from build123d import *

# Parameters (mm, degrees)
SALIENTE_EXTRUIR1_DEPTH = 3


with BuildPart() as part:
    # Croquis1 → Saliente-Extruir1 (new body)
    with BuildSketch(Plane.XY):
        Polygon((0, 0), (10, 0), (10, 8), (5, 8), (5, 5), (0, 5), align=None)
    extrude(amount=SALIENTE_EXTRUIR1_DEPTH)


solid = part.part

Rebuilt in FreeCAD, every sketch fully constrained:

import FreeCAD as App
import Part
import Sketcher
from FreeCAD import Vector

doc = App.newDocument("Part")
body = doc.addObject("PartDesign::Body", "Body")

sketch1 = body.newObject("Sketcher::SketchObject", "Sketch")
sketch1.AttachmentSupport = (doc.getObject("XY_Plane"), [""])
sketch1.MapMode = "FlatFace"
sketch1.addGeometry(Part.LineSegment(Vector(0, 0, 0), Vector(10, 0, 0)), False)
sketch1.addGeometry(Part.LineSegment(Vector(10, 0, 0), Vector(10, 8, 0)), False)
sketch1.addGeometry(Part.LineSegment(Vector(10, 8, 0), Vector(5, 8, 0)), False)
sketch1.addGeometry(Part.LineSegment(Vector(5, 8, 0), Vector(5, 5, 0)), False)
sketch1.addGeometry(Part.LineSegment(Vector(5, 5, 0), Vector(0, 5, 0)), False)
sketch1.addGeometry(Part.LineSegment(Vector(0, 5, 0), Vector(0, 0, 0)), False)
sketch1.addConstraint(Sketcher.Constraint("Coincident", 0, 2, 1, 1))
sketch1.addConstraint(Sketcher.Constraint("Coincident", 1, 2, 2, 1))
sketch1.addConstraint(Sketcher.Constraint("Coincident", 2, 2, 3, 1))
sketch1.addConstraint(Sketcher.Constraint("Coincident", 3, 2, 4, 1))
sketch1.addConstraint(Sketcher.Constraint("Coincident", 4, 2, 5, 1))
sketch1.addConstraint(Sketcher.Constraint("Coincident", 5, 2, 0, 1))
sketch1.addConstraint(Sketcher.Constraint("Horizontal", 0))
sketch1.addConstraint(Sketcher.Constraint("Vertical", 1))
sketch1.addConstraint(Sketcher.Constraint("Horizontal", 2))
sketch1.addConstraint(Sketcher.Constraint("Vertical", 3))
sketch1.addConstraint(Sketcher.Constraint("Horizontal", 4))
sketch1.addConstraint(Sketcher.Constraint("Vertical", 5))
sketch1.addConstraint(Sketcher.Constraint("Coincident", 5, 2, -1, 1))
sketch1.addConstraint(Sketcher.Constraint("Equal", 2, 4))
sketch1.addConstraint(Sketcher.Constraint("Equal", 4, 5))
sketch1.addConstraint(Sketcher.Constraint("DistanceX", 0, 1, 0, 2, 10.0))
sketch1.addConstraint(Sketcher.Constraint("DistanceY", 1, 1, 1, 2, 8.0))
pad1 = body.newObject("PartDesign::Pad", "Pad")
pad1.Profile = sketch1
pad1.Length = 3

doc.recompute()
